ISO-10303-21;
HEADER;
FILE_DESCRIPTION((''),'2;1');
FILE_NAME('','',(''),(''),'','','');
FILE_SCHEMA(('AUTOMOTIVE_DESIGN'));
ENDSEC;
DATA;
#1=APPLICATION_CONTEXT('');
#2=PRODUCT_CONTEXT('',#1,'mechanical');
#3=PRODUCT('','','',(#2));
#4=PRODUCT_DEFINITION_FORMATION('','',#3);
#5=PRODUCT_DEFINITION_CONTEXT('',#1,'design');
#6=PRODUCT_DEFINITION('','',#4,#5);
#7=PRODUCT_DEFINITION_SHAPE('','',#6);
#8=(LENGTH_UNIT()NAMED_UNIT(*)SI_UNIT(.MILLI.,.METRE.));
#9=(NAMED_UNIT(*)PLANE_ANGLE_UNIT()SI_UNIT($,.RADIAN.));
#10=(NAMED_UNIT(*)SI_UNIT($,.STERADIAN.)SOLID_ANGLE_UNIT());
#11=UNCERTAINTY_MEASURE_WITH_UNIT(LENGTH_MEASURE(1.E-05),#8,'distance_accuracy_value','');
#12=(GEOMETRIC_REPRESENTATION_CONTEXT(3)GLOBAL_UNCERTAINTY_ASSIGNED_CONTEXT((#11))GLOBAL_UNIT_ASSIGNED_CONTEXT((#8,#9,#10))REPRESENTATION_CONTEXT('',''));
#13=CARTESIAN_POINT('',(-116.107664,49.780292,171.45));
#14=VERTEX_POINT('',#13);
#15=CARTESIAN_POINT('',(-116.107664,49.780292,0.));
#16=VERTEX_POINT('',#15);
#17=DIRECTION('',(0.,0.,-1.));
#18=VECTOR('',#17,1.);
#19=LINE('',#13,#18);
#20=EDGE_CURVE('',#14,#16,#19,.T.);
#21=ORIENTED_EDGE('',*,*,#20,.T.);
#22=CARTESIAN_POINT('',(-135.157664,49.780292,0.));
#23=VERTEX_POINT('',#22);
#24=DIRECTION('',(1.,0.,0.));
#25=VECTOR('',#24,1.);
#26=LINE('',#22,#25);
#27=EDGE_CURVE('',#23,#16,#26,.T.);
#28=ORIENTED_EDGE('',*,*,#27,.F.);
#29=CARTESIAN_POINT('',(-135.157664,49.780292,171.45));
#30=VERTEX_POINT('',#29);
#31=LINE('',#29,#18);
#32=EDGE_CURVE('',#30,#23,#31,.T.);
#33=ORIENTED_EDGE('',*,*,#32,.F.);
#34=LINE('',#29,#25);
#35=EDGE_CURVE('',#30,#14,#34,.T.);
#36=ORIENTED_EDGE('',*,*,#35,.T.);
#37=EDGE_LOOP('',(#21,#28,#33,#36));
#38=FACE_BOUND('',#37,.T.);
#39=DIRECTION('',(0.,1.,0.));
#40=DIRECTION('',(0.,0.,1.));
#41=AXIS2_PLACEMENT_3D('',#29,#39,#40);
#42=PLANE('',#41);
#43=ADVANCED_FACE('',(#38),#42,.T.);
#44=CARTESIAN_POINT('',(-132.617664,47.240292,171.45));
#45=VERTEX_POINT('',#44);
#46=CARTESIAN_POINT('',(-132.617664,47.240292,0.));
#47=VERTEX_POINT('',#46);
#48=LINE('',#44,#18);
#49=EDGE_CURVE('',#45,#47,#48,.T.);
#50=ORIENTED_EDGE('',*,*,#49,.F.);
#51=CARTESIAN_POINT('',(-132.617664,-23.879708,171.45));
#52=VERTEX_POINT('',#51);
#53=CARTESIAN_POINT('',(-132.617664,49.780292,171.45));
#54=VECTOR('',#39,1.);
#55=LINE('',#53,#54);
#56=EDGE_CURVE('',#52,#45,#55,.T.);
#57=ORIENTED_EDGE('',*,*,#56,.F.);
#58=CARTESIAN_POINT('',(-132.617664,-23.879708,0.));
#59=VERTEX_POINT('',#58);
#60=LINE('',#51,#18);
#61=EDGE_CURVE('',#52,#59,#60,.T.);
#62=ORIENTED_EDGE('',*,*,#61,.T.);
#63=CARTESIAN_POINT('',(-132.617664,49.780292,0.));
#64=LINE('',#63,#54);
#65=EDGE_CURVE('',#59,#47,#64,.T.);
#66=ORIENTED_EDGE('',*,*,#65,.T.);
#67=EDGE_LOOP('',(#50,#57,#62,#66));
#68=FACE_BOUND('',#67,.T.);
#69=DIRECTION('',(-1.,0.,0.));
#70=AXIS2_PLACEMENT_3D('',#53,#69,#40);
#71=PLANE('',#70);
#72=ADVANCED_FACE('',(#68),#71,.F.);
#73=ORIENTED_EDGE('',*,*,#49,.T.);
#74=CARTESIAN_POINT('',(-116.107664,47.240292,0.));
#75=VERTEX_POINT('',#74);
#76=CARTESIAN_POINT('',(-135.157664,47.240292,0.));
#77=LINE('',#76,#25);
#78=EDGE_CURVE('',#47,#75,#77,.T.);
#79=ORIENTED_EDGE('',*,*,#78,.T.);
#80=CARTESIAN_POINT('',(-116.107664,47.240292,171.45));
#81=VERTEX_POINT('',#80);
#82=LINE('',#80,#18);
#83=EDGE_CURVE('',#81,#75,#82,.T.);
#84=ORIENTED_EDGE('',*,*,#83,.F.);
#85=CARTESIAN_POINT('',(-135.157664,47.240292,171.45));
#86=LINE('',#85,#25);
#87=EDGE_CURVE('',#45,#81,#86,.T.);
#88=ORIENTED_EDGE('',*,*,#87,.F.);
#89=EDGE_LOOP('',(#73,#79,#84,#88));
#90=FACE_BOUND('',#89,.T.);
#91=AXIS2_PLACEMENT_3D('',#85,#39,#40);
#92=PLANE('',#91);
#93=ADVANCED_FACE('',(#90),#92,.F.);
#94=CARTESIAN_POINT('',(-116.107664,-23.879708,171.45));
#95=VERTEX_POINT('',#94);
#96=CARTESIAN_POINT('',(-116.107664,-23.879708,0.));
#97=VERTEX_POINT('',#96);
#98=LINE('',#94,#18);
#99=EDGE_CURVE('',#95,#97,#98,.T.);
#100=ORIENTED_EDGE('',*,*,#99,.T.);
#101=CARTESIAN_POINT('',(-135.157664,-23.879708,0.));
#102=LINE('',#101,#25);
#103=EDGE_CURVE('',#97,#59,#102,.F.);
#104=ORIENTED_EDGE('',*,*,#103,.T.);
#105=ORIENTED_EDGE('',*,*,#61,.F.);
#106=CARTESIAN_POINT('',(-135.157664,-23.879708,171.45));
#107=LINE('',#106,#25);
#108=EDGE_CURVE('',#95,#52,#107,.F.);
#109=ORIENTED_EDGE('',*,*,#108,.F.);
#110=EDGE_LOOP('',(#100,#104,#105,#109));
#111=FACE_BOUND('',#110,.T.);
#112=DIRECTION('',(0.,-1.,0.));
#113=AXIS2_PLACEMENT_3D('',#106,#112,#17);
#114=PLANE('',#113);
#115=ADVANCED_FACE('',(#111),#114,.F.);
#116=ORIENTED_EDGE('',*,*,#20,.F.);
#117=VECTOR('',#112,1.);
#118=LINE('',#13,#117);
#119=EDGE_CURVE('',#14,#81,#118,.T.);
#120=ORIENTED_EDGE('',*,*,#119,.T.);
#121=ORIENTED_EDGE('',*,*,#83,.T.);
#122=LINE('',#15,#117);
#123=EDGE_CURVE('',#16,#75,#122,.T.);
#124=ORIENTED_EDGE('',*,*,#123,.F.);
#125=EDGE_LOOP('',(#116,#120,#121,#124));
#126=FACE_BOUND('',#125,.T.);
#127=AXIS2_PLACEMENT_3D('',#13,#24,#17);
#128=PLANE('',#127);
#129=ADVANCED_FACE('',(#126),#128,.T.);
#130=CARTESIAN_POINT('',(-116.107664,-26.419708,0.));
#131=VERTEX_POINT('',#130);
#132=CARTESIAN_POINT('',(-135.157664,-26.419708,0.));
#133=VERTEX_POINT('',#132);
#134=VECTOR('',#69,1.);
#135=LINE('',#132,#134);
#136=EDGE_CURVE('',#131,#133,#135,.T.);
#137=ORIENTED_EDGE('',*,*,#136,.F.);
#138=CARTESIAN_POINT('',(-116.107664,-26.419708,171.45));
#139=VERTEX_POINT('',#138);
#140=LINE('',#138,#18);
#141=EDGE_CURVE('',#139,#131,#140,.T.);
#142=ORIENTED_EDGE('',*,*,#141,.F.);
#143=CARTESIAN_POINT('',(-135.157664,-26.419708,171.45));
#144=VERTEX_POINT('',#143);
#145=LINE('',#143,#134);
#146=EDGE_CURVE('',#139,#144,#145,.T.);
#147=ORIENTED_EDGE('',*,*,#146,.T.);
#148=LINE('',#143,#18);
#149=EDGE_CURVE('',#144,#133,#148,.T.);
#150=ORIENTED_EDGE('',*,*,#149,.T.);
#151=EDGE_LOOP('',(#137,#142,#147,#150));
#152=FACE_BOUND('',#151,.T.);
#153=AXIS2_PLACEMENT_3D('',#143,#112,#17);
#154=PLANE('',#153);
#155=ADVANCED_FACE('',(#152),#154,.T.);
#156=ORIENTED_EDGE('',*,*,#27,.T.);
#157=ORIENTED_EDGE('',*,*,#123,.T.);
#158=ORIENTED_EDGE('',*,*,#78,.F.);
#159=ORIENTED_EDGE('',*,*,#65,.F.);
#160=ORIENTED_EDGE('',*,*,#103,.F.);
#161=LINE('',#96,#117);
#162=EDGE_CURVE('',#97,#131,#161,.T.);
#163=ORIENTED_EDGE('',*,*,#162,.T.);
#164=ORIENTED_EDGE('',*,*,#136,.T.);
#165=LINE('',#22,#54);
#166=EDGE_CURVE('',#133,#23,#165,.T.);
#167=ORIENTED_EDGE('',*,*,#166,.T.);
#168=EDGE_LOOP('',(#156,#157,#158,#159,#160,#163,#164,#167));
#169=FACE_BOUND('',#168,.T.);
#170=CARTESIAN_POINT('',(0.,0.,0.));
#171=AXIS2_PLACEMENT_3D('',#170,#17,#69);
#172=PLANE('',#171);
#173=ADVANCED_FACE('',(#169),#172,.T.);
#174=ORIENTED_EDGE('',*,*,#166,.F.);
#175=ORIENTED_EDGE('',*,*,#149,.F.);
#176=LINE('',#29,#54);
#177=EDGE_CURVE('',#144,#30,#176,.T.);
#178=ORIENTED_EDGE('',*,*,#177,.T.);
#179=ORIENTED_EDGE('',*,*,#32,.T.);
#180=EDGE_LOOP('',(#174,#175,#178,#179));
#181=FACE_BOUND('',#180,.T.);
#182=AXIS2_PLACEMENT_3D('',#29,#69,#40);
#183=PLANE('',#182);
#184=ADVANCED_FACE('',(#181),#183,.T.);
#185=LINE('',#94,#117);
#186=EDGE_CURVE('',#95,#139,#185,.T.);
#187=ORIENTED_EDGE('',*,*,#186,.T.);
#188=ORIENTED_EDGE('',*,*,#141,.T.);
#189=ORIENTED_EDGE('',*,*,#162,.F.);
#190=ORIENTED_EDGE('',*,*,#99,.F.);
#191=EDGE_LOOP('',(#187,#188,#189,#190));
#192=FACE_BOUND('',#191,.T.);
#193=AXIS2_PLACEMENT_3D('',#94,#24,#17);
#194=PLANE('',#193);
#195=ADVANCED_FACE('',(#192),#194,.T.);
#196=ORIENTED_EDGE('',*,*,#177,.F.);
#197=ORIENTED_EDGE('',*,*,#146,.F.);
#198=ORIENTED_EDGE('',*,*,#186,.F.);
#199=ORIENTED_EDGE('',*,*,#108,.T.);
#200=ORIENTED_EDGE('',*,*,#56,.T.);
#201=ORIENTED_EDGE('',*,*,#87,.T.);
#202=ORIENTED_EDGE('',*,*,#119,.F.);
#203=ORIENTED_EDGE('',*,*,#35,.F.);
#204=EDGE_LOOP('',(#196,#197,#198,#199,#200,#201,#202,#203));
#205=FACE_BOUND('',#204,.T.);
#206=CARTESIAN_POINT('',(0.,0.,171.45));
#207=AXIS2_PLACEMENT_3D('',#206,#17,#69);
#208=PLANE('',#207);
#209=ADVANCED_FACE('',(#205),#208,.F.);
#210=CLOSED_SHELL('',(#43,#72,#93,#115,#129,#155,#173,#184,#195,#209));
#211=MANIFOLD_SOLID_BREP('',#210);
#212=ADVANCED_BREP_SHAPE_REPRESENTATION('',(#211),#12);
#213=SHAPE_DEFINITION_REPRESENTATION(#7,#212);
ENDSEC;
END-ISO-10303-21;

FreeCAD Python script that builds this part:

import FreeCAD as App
import Part
import Sketcher
from FreeCAD import Vector
Q = App.Units.Quantity

doc = App.newDocument("Part")
body = doc.addObject("PartDesign::Body", "Body")

# Sketch on XY plane
sketch1 = body.newObject("Sketcher::SketchObject", "Sketch")
sketch1.AttachmentSupport = (doc.getObject("XY_Plane"), [""])
sketch1.MapMode = "FlatFace"
sketch1.addGeometry([
    Part.LineSegment(Vector(-116.1, 49.8, 0), Vector(-135.2, 49.8, 0)),  # 0
    Part.LineSegment(Vector(-135.2, 49.8, 0), Vector(-135.2, -26.4, 0)),  # 1
    Part.LineSegment(Vector(-135.2, -26.4, 0), Vector(-116.1, -26.4, 0)),  # 2
    Part.LineSegment(Vector(-116.1, -26.4, 0), Vector(-116.1, -23.9, 0)),  # 3
    Part.LineSegment(Vector(-116.1, -23.9, 0), Vector(-132.6, -23.9, 0)),  # 4
    Part.LineSegment(Vector(-132.6, -23.9, 0), Vector(-132.6, 47.2, 0)),  # 5
    Part.LineSegment(Vector(-132.6, 47.2, 0), Vector(-116.1, 47.2, 0)),  # 6
    Part.LineSegment(Vector(-116.1, 47.2, 0), Vector(-116.1, 49.8, 0)),  # 7
], False)
sketch1.addConstraint([
    Sketcher.Constraint("Coincident", 0, 2, 1, 1),
    Sketcher.Constraint("Coincident", 1, 2, 2, 1),
    Sketcher.Constraint("Coincident", 2, 2, 3, 1),
    Sketcher.Constraint("Coincident", 3, 2, 4, 1),
    Sketcher.Constraint("Coincident", 4, 2, 5, 1),
    Sketcher.Constraint("Coincident", 5, 2, 6, 1),
    Sketcher.Constraint("Coincident", 6, 2, 7, 1),
    Sketcher.Constraint("Coincident", 7, 2, 0, 1),
    Sketcher.Constraint("Horizontal", 0),
    Sketcher.Constraint("Vertical", 1),
    Sketcher.Constraint("Horizontal", 2),
    Sketcher.Constraint("Vertical", 3),
    Sketcher.Constraint("Horizontal", 4),
    Sketcher.Constraint("Vertical", 5),
    Sketcher.Constraint("Horizontal", 6),
    Sketcher.Constraint("Vertical", 7),
    Sketcher.Constraint("Vertical", 3, 2, 6, 2),
    Sketcher.Constraint("Equal", 3, 7),
    Sketcher.Constraint("DistanceY", 1, 2, 1, 1, Q("3 in")),
    Sketcher.Constraint("DistanceY", 3, 1, 3, 2, Q("0.1 in")),
    Sketcher.Constraint("DistanceX", 0, 2, 0, 1, Q("0.75 in")),
    Sketcher.Constraint("DistanceX", 4, 2, 4, 1, Q("0.65 in")),
    Sketcher.Constraint("DistanceY", -1, 1, 0, 2, Q("49.780292 mm")),
    Sketcher.Constraint("DistanceX", 0, 2, -1, 1, Q("135.157664 mm")),
])
pad1 = body.newObject("PartDesign::Pad", "Pad")
pad1.Profile = sketch1
pad1.Length = Q("6.75 in")

doc.recompute()
